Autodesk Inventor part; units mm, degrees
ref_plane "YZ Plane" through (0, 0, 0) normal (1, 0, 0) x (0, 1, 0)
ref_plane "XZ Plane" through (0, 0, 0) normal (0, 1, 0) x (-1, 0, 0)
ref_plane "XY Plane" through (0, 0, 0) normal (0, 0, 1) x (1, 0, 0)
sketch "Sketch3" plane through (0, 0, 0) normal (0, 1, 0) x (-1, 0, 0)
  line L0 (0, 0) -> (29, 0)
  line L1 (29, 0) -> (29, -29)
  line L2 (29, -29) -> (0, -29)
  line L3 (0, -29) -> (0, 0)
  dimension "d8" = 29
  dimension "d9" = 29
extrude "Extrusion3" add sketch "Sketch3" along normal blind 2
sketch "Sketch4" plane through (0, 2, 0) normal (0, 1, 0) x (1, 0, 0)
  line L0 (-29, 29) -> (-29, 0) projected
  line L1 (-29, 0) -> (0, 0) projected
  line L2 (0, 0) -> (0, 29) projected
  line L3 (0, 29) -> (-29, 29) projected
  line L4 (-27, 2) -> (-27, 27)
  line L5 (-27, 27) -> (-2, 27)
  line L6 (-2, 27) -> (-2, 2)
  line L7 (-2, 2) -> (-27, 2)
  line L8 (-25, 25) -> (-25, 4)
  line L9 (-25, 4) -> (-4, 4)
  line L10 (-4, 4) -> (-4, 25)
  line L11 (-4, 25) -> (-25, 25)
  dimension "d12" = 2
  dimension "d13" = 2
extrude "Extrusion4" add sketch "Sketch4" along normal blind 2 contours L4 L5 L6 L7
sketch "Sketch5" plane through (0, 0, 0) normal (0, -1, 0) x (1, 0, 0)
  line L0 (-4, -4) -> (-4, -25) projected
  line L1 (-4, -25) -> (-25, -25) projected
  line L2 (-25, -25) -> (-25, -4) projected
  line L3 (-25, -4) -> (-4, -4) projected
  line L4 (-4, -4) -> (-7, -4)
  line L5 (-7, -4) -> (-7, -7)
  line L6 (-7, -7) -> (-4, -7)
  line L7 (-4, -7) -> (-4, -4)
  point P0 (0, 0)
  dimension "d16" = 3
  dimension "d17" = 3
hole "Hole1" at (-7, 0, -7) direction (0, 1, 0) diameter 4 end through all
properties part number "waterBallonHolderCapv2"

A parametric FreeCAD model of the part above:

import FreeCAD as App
import Part
import Sketcher

doc = App.newDocument("Part")
params = doc.addObject("Spreadsheet::Sheet", "Params")
for row, (alias, value) in enumerate([
    ("sketch1_width", "29 mm"),
    ("pad1_length", "2 mm"),
    ("sketch2_width", "25 mm"),
    ("pad2_length", "2 mm"),
    ("sketch3_diameter", "4 mm"),
    ("hole_diameter", "4 mm"),
], start=1):
    params.set(f"A{row}", alias)
    params.set(f"B{row}", "=" + value)
    params.setAlias(f"B{row}", alias)

body = doc.addObject("PartDesign::Body", "Body")

sketch1 = body.newObject("Sketcher::SketchObject", "Sketch")
sketch1.AttachmentSupport = (doc.getObject("XZ_Plane"), [""])
sketch1.MapMode = "FlatFace"
sketch1.addGeometry([
    Part.LineSegment(App.Vector(-29, 0, 0), App.Vector(0, 0, 0)),
    Part.LineSegment(App.Vector(0, 0, 0), App.Vector(0, -29, 0)),
    Part.LineSegment(App.Vector(0, -29, 0), App.Vector(-29, -29, 0)),
    Part.LineSegment(App.Vector(-29, -29, 0), App.Vector(-29, 0, 0)),
], False)
sketch1.addConstraint([
    Sketcher.Constraint("Coincident", 0, 2, 1, 1),
    Sketcher.Constraint("Coincident", 1, 2, 2, 1),
    Sketcher.Constraint("Coincident", 2, 2, 3, 1),
    Sketcher.Constraint("Coincident", 3, 2, 0, 1),
    Sketcher.Constraint("Horizontal", 0),
    Sketcher.Constraint("Vertical", 1),
    Sketcher.Constraint("Horizontal", 2),
    Sketcher.Constraint("Vertical", 3),
    Sketcher.Constraint("Coincident", 0, 2, -1, 1),
    Sketcher.Constraint("Equal", 2, 1),
    Sketcher.Constraint("DistanceX", 0, 1, 0, 2, 29.0),
])
sketch1.setExpression("Constraints[10]", "Params.sketch1_width")
pad1 = body.newObject("PartDesign::Pad", "Pad")
pad1.Profile = sketch1
pad1.setExpression("Length", "Params.pad1_length")
pad1.Reversed = True

sketch2 = body.newObject("Sketcher::SketchObject", "Sketch001")
sketch2.AttachmentSupport = (doc.getObject("XZ_Plane"), [""])
sketch2.MapMode = "FlatFace"
sketch2.AttachmentOffset = App.Placement(App.Vector(0, 0, -2), App.Rotation())
sketch2.addGeometry([
    Part.LineSegment(App.Vector(-27, -27, 0), App.Vector(-27, -2, 0)),
    Part.LineSegment(App.Vector(-27, -2, 0), App.Vector(-2, -2, 0)),
    Part.LineSegment(App.Vector(-2, -2, 0), App.Vector(-2, -27, 0)),
    Part.LineSegment(App.Vector(-2, -27, 0), App.Vector(-27, -27, 0)),
    Part.LineSegment(App.Vector(-25, -4, 0), App.Vector(-25, -25, 0)),
    Part.LineSegment(App.Vector(-25, -25, 0), App.Vector(-4, -25, 0)),
    Part.LineSegment(App.Vector(-4, -25, 0), App.Vector(-4, -4, 0)),
    Part.LineSegment(App.Vector(-4, -4, 0), App.Vector(-25, -4, 0)),
], False)
sketch2.addConstraint([
    Sketcher.Constraint("Coincident", 0, 2, 1, 1),
    Sketcher.Constraint("Coincident", 1, 2, 2, 1),
    Sketcher.Constraint("Coincident", 2, 2, 3, 1),
    Sketcher.Constraint("Coincident", 3, 2, 0, 1),
    Sketcher.Constraint("Coincident", 4, 2, 5, 1),
    Sketcher.Constraint("Coincident", 5, 2, 6, 1),
    Sketcher.Constraint("Coincident", 6, 2, 7, 1),
    Sketcher.Constraint("Coincident", 7, 2, 4, 1),
    Sketcher.Constraint("Vertical", 0),
    Sketcher.Constraint("Horizontal", 1),
    Sketcher.Constraint("Vertical", 2),
    Sketcher.Constraint("Horizontal", 3),
    Sketcher.Constraint("Vertical", 4),
    Sketcher.Constraint("Horizontal", 5),
    Sketcher.Constraint("Vertical", 6),
    Sketcher.Constraint("Horizontal", 7),
    Sketcher.Constraint("Equal", 3, 0),
    Sketcher.Constraint("Equal", 7, 4),
    Sketcher.Constraint("DistanceY", 0, 2, -1, 1, 2.0),
    Sketcher.Constraint("DistanceX", 1, 2, -1, 1, 2.0),
    Sketcher.Constraint("DistanceX", 3, 2, 4, 2, 2.0),
    Sketcher.Constraint("DistanceY", 3, 2, 4, 2, 2.0),
    Sketcher.Constraint("DistanceX", 5, 2, 2, 2, 2.0),
    Sketcher.Constraint("DistanceX", 1, 1, 1, 2, 25.0),
])
sketch2.setExpression("Constraints[23]", "Params.sketch2_width")
pad2 = body.newObject("PartDesign::Pad", "Pad001")
pad2.Profile = sketch2
pad2.setExpression("Length", "Params.pad2_length")
pad2.Reversed = True

sketch3 = body.newObject("Sketcher::SketchObject", "Sketch002")
sketch3.AttachmentSupport = (doc.getObject("XZ_Plane"), [""])
sketch3.MapMode = "FlatFace"
sketch3.addGeometry(Part.Circle(App.Vector(-7, -7, 0), App.Vector(0, 0, 1), 2), False)
sketch3.addConstraint([
    Sketcher.Constraint("Diameter", 0, 4.0),
    Sketcher.Constraint("DistanceX", 0, 3, -1, 1, 7.0),
    Sketcher.Constraint("DistanceY", 0, 3, -1, 1, 7.0),
])
sketch3.setExpression("Constraints[0]", "Params.sketch3_diameter")
doc.recompute()
hole = body.newObject("PartDesign::Hole", "Hole")
hole.Profile = sketch3
hole.ThreadType = "None"
hole.setExpression("Diameter", "Params.hole_diameter")
hole.DepthType = "ThroughAll"

doc.recompute()
